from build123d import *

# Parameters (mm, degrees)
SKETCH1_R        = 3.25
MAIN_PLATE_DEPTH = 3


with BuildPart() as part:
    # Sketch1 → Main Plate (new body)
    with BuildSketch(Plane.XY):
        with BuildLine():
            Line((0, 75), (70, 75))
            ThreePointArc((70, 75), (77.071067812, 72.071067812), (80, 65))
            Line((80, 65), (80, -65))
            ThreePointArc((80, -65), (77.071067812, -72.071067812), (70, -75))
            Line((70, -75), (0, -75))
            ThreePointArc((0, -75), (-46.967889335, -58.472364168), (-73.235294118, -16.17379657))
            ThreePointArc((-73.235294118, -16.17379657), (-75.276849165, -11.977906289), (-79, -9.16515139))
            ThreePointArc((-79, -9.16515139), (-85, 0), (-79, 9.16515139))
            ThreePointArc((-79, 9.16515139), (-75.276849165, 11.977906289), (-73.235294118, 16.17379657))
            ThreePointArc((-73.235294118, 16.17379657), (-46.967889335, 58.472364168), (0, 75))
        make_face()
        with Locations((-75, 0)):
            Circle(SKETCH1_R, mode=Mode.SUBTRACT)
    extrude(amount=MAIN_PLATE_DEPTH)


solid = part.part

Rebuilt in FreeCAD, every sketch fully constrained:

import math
import FreeCAD as App
import Part
import Sketcher
from FreeCAD import Vector

doc = App.newDocument("Part")
body = doc.addObject("PartDesign::Body", "Body")

# Sketch on XY plane
sketch1 = body.newObject("Sketcher::SketchObject", "Sketch")
sketch1.AttachmentSupport = (doc.getObject("XY_Plane"), [""])
sketch1.MapMode = "FlatFace"
sketch1.addGeometry([
    Part.LineSegment(Vector(70, 75, 0), Vector(0, 75, 0)),  # 0
    Part.ArcOfCircle(Part.Circle(Vector(0, 0, 0), Vector(0, 0, 1), 75), math.radians(90), math.radians(168)),  # 1
    Part.ArcOfCircle(Part.Circle(Vector(-83, 18.3, 0), Vector(0, 0, 1), 10), math.radians(-66), math.radians(-12)),  # 2
    Part.ArcOfCircle(Part.Circle(Vector(-75, 0, 0), Vector(0, 0, 1), 10), math.radians(114), math.radians(246)),  # 3
    Part.ArcOfCircle(Part.Circle(Vector(-83, -18.3, 0), Vector(0, 0, 1), 10), math.radians(12), math.radians(66)),  # 4
    Part.ArcOfCircle(Part.Circle(Vector(0, 0, 0), Vector(0, 0, 1), 75), math.radians(-168), math.radians(-90)),  # 5
    Part.LineSegment(Vector(0, -75, 0), Vector(70, -75, 0)),  # 6
    Part.ArcOfCircle(Part.Circle(Vector(70, -65, 0), Vector(0, 0, 1), 10), math.radians(-90), math.radians(0)),  # 7
    Part.LineSegment(Vector(80, -65, 0), Vector(80, 65, 0)),  # 8
    Part.ArcOfCircle(Part.Circle(Vector(70, 65, 0), Vector(0, 0, 1), 10), math.radians(0), math.radians(90)),  # 9
    Part.Circle(Vector(-75, 0, 0), Vector(0, 0, 1), 3.2),  # 10
], False)
sketch1.addConstraint([
    Sketcher.Constraint("Tangent", 0, 2, 1, 1),
    Sketcher.Constraint("Tangent", 1, 2, 2, 2),
    Sketcher.Constraint("Tangent", 2, 1, 3, 1),
    Sketcher.Constraint("Tangent", 3, 2, 4, 2),
    Sketcher.Constraint("Tangent", 4, 1, 5, 1),
    Sketcher.Constraint("Tangent", 5, 2, 6, 1),
    Sketcher.Constraint("Tangent", 6, 2, 7, 1),
    Sketcher.Constraint("Tangent", 7, 2, 8, 1),
    Sketcher.Constraint("Tangent", 8, 2, 9, 1),
    Sketcher.Constraint("Tangent", 9, 2, 0, 1),
    Sketcher.Constraint("Horizontal", 0),
    Sketcher.Constraint("Horizontal", 6),
    Sketcher.Constraint("Vertical", 8),
    Sketcher.Constraint("Coincident", 1, 3, -1, 1),
    Sketcher.Constraint("Coincident", 5, 3, -1, 1),
    Sketcher.Constraint("Coincident", 10, 3, 3, 3),
    Sketcher.Constraint("Equal", 2, 3),
    Sketcher.Constraint("Equal", 3, 4),
    Sketcher.Constraint("Equal", 1, 5),
    Sketcher.Constraint("Equal", 4, 7),
    Sketcher.Constraint("Equal", 7, 9),
    Sketcher.Constraint("PointOnObject", 3, 3, -1),
    Sketcher.Constraint("Radius", 1, 75.0),
    Sketcher.Constraint("Radius", 2, 10.0),
    Sketcher.Constraint("Diameter", 10, 6.5),
    Sketcher.Constraint("DistanceX", 0, 2, 0, 1, 70.0),
    Sketcher.Constraint("DistanceX", 2, 3, -1, 1, 83.0),
])
pad1 = body.newObject("PartDesign::Pad", "Pad")
pad1.Profile = sketch1
pad1.Length = 3

doc.recompute()
